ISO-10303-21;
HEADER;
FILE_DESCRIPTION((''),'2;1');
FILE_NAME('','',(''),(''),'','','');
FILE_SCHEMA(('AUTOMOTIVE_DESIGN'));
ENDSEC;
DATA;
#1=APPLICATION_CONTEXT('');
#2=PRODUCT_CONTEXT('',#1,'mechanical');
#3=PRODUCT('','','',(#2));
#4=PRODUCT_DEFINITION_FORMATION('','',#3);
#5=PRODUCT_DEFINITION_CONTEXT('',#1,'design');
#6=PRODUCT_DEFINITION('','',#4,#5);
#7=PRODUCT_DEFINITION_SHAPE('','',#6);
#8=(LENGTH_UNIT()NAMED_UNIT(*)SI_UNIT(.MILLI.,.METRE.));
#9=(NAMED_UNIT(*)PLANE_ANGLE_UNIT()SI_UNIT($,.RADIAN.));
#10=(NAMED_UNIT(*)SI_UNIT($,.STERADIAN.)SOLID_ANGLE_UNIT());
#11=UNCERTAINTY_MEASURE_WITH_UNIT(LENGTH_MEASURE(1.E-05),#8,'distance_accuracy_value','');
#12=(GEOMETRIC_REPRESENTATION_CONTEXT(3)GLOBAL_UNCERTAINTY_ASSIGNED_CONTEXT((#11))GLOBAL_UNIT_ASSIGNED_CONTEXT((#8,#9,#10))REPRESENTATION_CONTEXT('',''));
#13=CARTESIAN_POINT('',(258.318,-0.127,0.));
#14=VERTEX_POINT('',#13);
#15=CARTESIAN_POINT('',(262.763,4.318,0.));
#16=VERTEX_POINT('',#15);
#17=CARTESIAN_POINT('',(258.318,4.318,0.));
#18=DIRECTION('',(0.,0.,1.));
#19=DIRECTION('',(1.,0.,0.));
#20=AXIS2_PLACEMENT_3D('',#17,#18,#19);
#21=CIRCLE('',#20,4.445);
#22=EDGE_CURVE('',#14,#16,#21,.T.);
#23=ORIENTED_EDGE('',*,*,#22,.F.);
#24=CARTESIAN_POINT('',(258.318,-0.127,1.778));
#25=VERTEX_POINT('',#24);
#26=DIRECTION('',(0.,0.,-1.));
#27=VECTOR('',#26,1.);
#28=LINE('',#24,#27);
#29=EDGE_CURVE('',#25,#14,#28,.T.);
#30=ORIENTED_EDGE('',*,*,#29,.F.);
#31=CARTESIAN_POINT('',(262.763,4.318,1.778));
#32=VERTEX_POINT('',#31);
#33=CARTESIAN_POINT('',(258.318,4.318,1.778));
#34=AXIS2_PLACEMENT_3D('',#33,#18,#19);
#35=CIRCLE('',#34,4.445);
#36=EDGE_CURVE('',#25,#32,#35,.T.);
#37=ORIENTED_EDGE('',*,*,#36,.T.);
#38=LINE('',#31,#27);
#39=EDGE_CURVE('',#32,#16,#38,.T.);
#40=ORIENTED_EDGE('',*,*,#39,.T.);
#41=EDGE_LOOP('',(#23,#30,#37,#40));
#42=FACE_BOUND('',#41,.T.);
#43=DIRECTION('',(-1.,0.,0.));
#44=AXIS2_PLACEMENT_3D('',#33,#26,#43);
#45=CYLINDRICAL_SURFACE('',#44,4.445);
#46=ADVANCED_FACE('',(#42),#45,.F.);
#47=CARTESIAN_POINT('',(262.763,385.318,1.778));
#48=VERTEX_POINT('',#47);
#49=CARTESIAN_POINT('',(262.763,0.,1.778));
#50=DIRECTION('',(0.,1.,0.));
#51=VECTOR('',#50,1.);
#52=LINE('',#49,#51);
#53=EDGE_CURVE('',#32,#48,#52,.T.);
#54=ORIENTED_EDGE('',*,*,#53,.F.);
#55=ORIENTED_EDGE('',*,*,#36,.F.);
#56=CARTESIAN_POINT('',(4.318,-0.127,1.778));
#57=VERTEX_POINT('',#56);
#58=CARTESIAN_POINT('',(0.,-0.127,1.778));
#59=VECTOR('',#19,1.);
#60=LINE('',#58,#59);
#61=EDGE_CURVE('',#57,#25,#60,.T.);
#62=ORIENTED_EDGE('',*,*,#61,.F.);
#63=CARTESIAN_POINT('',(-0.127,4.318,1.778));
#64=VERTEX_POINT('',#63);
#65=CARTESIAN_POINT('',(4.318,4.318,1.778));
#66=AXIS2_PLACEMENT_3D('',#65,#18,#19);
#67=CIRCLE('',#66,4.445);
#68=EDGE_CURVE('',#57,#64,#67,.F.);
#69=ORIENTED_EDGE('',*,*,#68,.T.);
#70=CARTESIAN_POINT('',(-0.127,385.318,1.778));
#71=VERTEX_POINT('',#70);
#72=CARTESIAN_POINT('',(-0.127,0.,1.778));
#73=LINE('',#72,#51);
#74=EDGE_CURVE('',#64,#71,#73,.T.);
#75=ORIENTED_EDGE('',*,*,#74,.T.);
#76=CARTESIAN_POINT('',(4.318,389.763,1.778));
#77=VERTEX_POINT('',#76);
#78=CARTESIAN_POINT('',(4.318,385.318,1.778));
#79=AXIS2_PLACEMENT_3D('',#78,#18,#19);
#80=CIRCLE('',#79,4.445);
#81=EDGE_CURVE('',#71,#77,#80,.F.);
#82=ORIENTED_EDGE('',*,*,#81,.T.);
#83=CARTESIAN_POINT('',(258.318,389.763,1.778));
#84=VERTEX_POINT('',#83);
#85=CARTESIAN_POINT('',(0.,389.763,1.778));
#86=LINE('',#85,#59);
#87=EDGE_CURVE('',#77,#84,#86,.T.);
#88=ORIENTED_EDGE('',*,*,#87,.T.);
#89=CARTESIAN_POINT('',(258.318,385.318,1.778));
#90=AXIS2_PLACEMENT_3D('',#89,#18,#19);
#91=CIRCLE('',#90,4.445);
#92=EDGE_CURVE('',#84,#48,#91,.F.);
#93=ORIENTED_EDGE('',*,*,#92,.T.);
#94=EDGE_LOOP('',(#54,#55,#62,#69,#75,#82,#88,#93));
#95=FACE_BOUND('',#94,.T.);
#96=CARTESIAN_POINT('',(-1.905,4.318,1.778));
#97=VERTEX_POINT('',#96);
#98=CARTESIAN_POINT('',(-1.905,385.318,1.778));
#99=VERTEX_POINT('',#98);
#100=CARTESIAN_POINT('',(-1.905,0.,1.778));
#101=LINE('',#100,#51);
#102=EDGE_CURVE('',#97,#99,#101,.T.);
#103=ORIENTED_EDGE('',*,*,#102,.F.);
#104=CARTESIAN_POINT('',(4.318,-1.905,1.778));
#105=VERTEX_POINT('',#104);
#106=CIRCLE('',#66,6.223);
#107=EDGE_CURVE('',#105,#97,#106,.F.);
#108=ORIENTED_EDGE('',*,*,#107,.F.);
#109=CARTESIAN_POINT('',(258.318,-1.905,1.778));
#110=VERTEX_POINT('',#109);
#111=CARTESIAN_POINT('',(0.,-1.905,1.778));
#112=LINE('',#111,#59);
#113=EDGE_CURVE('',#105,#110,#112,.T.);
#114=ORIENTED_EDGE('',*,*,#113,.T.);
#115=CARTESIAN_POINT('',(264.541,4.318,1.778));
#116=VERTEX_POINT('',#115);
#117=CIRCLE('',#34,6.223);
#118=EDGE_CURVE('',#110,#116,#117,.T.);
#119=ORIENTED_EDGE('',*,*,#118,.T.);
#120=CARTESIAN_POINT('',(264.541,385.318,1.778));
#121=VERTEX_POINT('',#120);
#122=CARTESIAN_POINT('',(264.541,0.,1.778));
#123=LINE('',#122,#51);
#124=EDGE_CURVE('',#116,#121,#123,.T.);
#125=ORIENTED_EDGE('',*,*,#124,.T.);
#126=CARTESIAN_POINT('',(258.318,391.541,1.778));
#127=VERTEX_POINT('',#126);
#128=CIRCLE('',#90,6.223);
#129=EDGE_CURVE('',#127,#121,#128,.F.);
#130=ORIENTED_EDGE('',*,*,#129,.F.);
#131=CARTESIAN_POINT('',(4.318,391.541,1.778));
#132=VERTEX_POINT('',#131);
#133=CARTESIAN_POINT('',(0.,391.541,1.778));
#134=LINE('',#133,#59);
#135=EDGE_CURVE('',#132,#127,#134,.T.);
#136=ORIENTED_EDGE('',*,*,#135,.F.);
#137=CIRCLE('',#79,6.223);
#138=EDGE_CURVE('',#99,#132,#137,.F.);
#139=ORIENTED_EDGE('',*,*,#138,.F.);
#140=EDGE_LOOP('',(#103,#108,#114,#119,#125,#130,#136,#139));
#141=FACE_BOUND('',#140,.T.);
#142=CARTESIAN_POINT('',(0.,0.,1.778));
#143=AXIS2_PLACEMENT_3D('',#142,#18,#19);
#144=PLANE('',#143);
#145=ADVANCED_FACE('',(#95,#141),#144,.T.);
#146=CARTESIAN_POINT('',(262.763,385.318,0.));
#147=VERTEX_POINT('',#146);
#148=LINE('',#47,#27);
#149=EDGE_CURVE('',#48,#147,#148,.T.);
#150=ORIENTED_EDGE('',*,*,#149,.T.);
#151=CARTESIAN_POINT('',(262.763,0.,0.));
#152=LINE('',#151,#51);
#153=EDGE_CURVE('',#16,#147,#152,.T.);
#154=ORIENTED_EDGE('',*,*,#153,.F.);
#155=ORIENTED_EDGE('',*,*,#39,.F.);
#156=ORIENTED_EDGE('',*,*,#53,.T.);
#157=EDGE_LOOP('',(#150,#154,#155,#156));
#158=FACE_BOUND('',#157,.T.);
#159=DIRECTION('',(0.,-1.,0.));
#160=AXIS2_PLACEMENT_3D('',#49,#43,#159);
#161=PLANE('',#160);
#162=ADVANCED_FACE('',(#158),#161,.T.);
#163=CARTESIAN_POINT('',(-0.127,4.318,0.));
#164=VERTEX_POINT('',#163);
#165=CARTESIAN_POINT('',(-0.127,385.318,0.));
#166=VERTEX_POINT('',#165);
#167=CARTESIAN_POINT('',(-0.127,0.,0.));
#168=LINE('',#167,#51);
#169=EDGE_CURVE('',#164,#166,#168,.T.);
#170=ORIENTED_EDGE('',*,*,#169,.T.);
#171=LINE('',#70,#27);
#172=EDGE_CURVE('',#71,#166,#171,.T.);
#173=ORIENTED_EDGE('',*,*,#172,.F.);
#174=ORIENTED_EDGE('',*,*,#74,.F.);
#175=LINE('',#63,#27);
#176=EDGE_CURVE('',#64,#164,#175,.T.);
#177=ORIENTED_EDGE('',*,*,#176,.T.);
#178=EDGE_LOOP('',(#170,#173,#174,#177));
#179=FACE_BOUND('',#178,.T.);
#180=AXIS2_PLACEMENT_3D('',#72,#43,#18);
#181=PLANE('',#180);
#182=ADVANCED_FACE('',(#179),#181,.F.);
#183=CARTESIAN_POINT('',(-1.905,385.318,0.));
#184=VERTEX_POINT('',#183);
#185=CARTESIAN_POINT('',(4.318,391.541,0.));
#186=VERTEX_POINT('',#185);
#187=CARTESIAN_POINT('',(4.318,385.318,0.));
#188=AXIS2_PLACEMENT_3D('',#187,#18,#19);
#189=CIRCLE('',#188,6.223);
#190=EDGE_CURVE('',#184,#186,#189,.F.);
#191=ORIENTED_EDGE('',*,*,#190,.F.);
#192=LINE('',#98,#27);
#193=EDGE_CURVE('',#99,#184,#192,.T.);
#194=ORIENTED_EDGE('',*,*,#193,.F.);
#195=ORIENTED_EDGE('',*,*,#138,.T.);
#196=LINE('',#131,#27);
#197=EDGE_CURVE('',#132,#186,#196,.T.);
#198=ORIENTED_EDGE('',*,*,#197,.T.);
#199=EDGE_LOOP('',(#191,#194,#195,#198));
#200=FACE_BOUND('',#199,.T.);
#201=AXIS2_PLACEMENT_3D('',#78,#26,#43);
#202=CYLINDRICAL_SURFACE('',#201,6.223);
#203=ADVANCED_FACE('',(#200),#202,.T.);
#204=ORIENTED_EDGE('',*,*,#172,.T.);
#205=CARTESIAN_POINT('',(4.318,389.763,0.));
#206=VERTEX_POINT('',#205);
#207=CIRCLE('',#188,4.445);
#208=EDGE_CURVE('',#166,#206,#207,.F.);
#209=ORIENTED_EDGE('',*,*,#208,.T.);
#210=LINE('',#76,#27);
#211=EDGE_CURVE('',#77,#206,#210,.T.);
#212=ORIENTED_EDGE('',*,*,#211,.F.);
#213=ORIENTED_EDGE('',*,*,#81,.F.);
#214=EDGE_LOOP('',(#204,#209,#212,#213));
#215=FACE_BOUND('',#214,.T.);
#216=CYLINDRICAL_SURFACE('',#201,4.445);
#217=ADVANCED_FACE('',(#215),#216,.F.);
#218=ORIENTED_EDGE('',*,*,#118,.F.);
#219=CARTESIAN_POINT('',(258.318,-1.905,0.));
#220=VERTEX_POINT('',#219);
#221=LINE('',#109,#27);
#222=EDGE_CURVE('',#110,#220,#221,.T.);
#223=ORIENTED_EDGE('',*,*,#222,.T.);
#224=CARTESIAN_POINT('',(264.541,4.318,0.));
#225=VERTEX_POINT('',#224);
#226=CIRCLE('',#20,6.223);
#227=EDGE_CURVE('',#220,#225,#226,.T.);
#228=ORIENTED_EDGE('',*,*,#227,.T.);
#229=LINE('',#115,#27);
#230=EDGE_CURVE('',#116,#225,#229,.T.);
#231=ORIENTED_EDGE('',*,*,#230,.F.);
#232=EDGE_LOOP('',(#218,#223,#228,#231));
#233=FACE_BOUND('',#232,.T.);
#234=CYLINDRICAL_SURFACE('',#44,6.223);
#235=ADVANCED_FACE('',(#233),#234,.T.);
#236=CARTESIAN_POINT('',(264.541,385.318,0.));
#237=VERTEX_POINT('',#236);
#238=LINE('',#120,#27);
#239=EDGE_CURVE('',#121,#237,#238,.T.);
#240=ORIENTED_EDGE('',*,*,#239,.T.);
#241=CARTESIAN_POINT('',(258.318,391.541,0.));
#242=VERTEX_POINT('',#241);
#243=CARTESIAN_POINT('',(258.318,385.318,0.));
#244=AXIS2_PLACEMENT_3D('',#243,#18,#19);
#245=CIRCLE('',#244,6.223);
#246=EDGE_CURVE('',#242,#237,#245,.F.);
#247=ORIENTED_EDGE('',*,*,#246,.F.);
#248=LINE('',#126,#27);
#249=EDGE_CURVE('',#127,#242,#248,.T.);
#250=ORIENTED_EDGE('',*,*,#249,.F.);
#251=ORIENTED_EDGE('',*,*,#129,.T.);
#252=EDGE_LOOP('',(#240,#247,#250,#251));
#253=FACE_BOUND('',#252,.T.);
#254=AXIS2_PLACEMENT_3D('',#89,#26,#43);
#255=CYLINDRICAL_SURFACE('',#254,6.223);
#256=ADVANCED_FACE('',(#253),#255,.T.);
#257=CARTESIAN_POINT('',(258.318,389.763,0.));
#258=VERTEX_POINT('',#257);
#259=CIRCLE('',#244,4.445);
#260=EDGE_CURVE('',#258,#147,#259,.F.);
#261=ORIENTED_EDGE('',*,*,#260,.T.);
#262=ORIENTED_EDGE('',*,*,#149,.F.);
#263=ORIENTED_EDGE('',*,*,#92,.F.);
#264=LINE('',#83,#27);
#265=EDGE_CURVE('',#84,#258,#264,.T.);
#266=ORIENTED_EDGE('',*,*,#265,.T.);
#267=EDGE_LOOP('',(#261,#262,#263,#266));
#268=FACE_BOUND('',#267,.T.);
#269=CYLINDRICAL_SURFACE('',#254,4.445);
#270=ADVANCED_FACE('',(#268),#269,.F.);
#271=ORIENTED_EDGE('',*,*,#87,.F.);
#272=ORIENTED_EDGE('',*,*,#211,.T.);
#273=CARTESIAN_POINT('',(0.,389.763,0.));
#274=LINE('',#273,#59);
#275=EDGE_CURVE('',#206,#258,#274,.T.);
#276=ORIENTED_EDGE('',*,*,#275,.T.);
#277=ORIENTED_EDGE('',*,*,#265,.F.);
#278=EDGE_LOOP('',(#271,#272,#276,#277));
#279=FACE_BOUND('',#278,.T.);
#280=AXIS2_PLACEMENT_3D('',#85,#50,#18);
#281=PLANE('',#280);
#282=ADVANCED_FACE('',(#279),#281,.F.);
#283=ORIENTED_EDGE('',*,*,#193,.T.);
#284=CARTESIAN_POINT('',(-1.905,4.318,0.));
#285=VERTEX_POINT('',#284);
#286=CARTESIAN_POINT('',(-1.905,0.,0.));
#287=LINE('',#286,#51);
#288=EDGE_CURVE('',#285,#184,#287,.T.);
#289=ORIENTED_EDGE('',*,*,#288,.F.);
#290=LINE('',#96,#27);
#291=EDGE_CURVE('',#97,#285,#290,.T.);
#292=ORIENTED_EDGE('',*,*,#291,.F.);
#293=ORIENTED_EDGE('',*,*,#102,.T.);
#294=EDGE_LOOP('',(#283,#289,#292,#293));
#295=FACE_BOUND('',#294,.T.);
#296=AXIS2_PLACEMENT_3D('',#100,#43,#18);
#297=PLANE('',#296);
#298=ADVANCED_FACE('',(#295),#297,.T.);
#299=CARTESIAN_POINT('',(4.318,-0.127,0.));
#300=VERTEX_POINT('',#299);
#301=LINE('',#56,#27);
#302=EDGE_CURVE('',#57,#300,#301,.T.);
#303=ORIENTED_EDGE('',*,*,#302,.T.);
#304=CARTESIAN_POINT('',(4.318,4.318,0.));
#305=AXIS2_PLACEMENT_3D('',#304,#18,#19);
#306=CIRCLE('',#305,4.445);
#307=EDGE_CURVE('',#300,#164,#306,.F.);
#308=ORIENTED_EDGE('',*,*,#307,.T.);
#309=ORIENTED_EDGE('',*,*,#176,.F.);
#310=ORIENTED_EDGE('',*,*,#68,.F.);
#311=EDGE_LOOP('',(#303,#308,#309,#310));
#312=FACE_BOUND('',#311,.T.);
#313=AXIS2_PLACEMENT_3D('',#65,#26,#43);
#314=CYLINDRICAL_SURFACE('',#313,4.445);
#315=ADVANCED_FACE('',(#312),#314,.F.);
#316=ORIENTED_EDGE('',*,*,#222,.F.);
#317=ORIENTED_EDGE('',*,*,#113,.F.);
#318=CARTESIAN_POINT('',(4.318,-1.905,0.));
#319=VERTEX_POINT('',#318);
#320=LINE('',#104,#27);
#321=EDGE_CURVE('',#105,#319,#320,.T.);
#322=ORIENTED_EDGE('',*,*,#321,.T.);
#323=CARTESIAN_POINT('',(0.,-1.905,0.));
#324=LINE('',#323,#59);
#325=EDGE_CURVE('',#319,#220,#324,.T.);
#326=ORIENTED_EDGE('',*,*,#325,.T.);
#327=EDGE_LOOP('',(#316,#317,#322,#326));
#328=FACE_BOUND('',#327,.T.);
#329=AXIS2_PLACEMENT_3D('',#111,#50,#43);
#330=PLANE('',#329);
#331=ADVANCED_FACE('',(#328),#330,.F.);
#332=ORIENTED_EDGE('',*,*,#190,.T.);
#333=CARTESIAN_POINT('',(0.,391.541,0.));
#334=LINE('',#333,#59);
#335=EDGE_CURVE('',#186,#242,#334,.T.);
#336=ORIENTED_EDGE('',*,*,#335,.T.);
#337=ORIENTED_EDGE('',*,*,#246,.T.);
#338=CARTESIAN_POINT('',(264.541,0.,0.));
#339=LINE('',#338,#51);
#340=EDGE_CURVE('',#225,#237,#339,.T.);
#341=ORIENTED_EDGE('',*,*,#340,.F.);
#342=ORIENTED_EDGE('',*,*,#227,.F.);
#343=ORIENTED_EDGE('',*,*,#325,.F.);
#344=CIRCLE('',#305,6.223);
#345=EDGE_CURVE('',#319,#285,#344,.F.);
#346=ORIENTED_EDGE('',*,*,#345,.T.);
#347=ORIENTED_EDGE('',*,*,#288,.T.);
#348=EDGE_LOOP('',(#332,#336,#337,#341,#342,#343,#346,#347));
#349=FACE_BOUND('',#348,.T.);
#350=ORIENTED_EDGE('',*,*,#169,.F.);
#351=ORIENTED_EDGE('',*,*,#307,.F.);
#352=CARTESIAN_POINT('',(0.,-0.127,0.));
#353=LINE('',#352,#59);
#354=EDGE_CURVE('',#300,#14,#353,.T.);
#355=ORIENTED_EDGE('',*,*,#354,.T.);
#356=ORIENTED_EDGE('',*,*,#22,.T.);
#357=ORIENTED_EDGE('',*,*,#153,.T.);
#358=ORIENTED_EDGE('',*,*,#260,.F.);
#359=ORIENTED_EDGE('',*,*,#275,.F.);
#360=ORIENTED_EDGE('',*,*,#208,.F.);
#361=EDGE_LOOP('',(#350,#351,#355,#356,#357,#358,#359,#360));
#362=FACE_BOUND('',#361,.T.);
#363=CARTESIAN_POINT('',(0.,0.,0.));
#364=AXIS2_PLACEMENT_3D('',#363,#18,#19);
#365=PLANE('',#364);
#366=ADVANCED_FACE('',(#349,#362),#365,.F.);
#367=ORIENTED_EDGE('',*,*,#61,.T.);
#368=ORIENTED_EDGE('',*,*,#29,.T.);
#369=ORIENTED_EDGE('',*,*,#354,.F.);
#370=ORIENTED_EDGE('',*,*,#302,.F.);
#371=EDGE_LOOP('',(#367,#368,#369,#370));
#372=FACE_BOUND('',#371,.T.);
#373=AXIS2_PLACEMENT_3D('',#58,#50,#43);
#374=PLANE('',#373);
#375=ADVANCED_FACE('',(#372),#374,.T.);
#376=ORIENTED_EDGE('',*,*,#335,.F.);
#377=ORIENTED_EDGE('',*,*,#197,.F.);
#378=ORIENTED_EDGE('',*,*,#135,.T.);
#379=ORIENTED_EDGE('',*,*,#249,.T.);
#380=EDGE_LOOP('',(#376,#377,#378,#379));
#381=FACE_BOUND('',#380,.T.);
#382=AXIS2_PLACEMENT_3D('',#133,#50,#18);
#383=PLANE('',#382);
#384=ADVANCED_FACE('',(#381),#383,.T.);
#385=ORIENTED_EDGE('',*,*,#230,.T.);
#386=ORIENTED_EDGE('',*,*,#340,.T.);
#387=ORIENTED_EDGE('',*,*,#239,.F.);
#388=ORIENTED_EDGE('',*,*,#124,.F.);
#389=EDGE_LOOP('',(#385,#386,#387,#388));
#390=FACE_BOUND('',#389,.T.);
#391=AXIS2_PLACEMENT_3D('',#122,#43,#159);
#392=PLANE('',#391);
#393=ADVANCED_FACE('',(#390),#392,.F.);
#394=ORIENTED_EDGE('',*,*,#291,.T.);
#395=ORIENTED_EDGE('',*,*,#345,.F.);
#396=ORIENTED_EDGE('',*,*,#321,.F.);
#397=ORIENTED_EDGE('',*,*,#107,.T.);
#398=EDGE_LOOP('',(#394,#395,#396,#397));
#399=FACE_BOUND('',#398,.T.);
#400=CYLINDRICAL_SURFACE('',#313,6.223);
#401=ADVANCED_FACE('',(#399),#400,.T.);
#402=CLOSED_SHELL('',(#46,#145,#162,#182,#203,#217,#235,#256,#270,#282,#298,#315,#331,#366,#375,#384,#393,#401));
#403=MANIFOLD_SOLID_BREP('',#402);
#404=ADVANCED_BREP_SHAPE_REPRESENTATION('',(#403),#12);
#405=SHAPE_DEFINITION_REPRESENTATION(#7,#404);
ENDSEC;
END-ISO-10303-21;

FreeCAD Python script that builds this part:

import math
import FreeCAD as App
import Part
import Sketcher

V = App.Vector
Q = App.Units.Quantity

doc = App.newDocument("Part")
params = doc.addObject("Spreadsheet::Sheet", "Params")
for row, (alias, value) in enumerate([
    ("sketch1_width", "10 in"),
    ("sketch1_height", "15 in"),
    ("sketch1_radius", "0.245 in"),
    ("sketch1_radius2", "0.175 in"),
    ("pad1_length", "0.07 in"),
], start=1):
    params.set(f"A{row}", alias)
    params.set(f"B{row}", "=" + value)
    params.setAlias(f"B{row}", alias)

body = doc.addObject("PartDesign::Body", "Body")

# Sketch on XY plane
sketch1 = body.newObject("Sketcher::SketchObject", "Sketch")
sketch1.AttachmentSupport = (doc.getObject("XY_Plane"), [""])
sketch1.MapMode = "FlatFace"
sketch1.addGeometry(Part.ArcOfCircle(Part.Circle(V(4.3, 4.3, 0), V(0, 0, 1), 6.2), math.radians(-180), math.radians(-90)), False)
sketch1.addGeometry(Part.LineSegment(V(4.3, -1.9, 0), V(258.3, -1.9, 0)), False)
sketch1.addGeometry(Part.ArcOfCircle(Part.Circle(V(258.3, 4.3, 0), V(0, 0, 1), 6.2), math.radians(-90), math.radians(0)), False)
sketch1.addGeometry(Part.LineSegment(V(264.5, 4.3, 0), V(264.5, 385.3, 0)), False)
sketch1.addGeometry(Part.ArcOfCircle(Part.Circle(V(258.3, 385.3, 0), V(0, 0, 1), 6.2), math.radians(0), math.radians(90)), False)
sketch1.addGeometry(Part.LineSegment(V(258.3, 391.5, 0), V(4.3, 391.5, 0)), False)
sketch1.addGeometry(Part.ArcOfCircle(Part.Circle(V(4.3, 385.3, 0), V(0, 0, 1), 6.2), math.radians(90), math.radians(180)), False)
sketch1.addGeometry(Part.LineSegment(V(-1.9, 385.3, 0), V(-1.9, 4.3, 0)), False)
sketch1.addGeometry(Part.ArcOfCircle(Part.Circle(V(4.3, 4.3, 0), V(0, 0, 1), 4.4), math.radians(-180), math.radians(-90)), False)
sketch1.addGeometry(Part.LineSegment(V(-0.1, 4.3, 0), V(-0.1, 385.3, 0)), False)
sketch1.addGeometry(Part.ArcOfCircle(Part.Circle(V(4.3, 385.3, 0), V(0, 0, 1), 4.4), math.radians(90), math.radians(180)), False)
sketch1.addGeometry(Part.LineSegment(V(4.3, 389.8, 0), V(258.3, 389.8, 0)), False)
sketch1.addGeometry(Part.ArcOfCircle(Part.Circle(V(258.3, 385.3, 0), V(0, 0, 1), 4.4), math.radians(0), math.radians(90)), False)
sketch1.addGeometry(Part.LineSegment(V(262.8, 385.3, 0), V(262.8, 4.3, 0)), False)
sketch1.addGeometry(Part.ArcOfCircle(Part.Circle(V(258.3, 4.3, 0), V(0, 0, 1), 4.4), math.radians(-90), math.radians(0)), False)
sketch1.addGeometry(Part.LineSegment(V(258.3, -0.1, 0), V(4.3, -0.1, 0)), False)
sketch1.addConstraint(Sketcher.Constraint("Tangent", 0, 2, 1, 1))
sketch1.addConstraint(Sketcher.Constraint("Tangent", 1, 2, 2, 1))
sketch1.addConstraint(Sketcher.Constraint("Tangent", 2, 2, 3, 1))
sketch1.addConstraint(Sketcher.Constraint("Tangent", 3, 2, 4, 1))
sketch1.addConstraint(Sketcher.Constraint("Tangent", 4, 2, 5, 1))
sketch1.addConstraint(Sketcher.Constraint("Tangent", 5, 2, 6, 1))
sketch1.addConstraint(Sketcher.Constraint("Tangent", 6, 2, 7, 1))
sketch1.addConstraint(Sketcher.Constraint("Tangent", 7, 2, 0, 1))
sketch1.addConstraint(Sketcher.Constraint("Tangent", 8, 1, 9, 1))
sketch1.addConstraint(Sketcher.Constraint("Tangent", 9, 2, 10, 2))
sketch1.addConstraint(Sketcher.Constraint("Tangent", 10, 1, 11, 1))
sketch1.addConstraint(Sketcher.Constraint("Tangent", 11, 2, 12, 2))
sketch1.addConstraint(Sketcher.Constraint("Tangent", 12, 1, 13, 1))
sketch1.addConstraint(Sketcher.Constraint("Tangent", 13, 2, 14, 2))
sketch1.addConstraint(Sketcher.Constraint("Tangent", 14, 1, 15, 1))
sketch1.addConstraint(Sketcher.Constraint("Tangent", 15, 2, 8, 2))
sketch1.addConstraint(Sketcher.Constraint("Horizontal", 1))
sketch1.addConstraint(Sketcher.Constraint("Vertical", 3))
sketch1.addConstraint(Sketcher.Constraint("Horizontal", 5))
sketch1.addConstraint(Sketcher.Constraint("Vertical", 7))
sketch1.addConstraint(Sketcher.Constraint("Vertical", 9))
sketch1.addConstraint(Sketcher.Constraint("Horizontal", 11))
sketch1.addConstraint(Sketcher.Constraint("Vertical", 13))
sketch1.addConstraint(Sketcher.Constraint("Horizontal", 15))
sketch1.addConstraint(Sketcher.Constraint("Coincident", 8, 3, 0, 3))
sketch1.addConstraint(Sketcher.Constraint("Coincident", 10, 3, 6, 3))
sketch1.addConstraint(Sketcher.Constraint("Coincident", 12, 3, 4, 3))
sketch1.addConstraint(Sketcher.Constraint("Equal", 0, 2))
sketch1.addConstraint(Sketcher.Constraint("Equal", 2, 4))
sketch1.addConstraint(Sketcher.Constraint("Equal", 4, 6))
sketch1.addConstraint(Sketcher.Constraint("Equal", 12, 14))
sketch1.addConstraint(Sketcher.Constraint("DistanceX", 1, 1, 1, 2, Q("10 in")))
sketch1.addConstraint(Sketcher.Constraint("DistanceY", 3, 1, 3, 2, Q("15 in")))
sketch1.addConstraint(Sketcher.Constraint("Radius", 0, Q("0.245 in")))
sketch1.addConstraint(Sketcher.Constraint("Radius", 8, Q("0.175 in")))
sketch1.addConstraint(Sketcher.Constraint("DistanceX", -1, 1, 0, 3, Q("0.17 in")))
sketch1.addConstraint(Sketcher.Constraint("DistanceY", -1, 1, 0, 3, Q("0.17 in")))
sketch1.setExpression("Constraints[31]", "Params.sketch1_width")
sketch1.setExpression("Constraints[32]", "Params.sketch1_height")
sketch1.setExpression("Constraints[33]", "Params.sketch1_radius")
sketch1.setExpression("Constraints[34]", "Params.sketch1_radius2")
pad1 = body.newObject("PartDesign::Pad", "Pad")
pad1.Profile = sketch1
pad1.setExpression("Length", "Params.pad1_length")

doc.recompute()
